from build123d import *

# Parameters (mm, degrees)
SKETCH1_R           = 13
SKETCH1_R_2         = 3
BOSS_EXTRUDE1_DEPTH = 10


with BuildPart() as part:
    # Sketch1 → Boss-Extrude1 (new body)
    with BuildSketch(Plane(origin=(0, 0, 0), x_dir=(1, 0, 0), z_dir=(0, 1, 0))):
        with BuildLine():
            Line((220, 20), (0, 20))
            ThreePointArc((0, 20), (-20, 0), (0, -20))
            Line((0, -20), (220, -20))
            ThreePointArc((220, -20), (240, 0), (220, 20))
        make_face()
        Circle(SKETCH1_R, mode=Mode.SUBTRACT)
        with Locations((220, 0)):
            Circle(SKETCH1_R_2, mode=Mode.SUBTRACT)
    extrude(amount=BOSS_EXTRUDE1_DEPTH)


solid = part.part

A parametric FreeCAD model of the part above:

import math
import FreeCAD as App
import Part
import Sketcher
Q = App.Units.Quantity

doc = App.newDocument("Part")
body = doc.addObject("PartDesign::Body", "Body")

# Sketch on XZ plane
sketch1 = body.newObject("Sketcher::SketchObject", "Sketch")
sketch1.AttachmentSupport = (doc.getObject("XZ_Plane"), [""])
sketch1.MapMode = "FlatFace"
sketch1.addGeometry(Part.LineSegment(App.Vector(220, -20, 0), App.Vector(0, -20, 0)), False)
sketch1.addGeometry(Part.ArcOfCircle(Part.Circle(App.Vector(0, 0, 0), App.Vector(0, 0, 1), 20), math.radians(90), math.radians(270)), False)
sketch1.addGeometry(Part.LineSegment(App.Vector(0, 20, 0), App.Vector(220, 20, 0)), False)
sketch1.addGeometry(Part.ArcOfCircle(Part.Circle(App.Vector(220, 0, 0), App.Vector(0, 0, 1), 20), math.radians(-90), math.radians(90)), False)
sketch1.addGeometry(Part.Circle(App.Vector(0, 0, 0), App.Vector(0, 0, 1), 13), False)
sketch1.addGeometry(Part.Circle(App.Vector(220, 0, 0), App.Vector(0, 0, 1), 3), False)
sketch1.addConstraint(Sketcher.Constraint("Tangent", 0, 2, 1, 2))
sketch1.addConstraint(Sketcher.Constraint("Tangent", 1, 1, 2, 1))
sketch1.addConstraint(Sketcher.Constraint("Tangent", 2, 2, 3, 2))
sketch1.addConstraint(Sketcher.Constraint("Tangent", 3, 1, 0, 1))
sketch1.addConstraint(Sketcher.Constraint("Horizontal", 0))
sketch1.addConstraint(Sketcher.Constraint("Horizontal", 2))
sketch1.addConstraint(Sketcher.Constraint("Coincident", 1, 3, -1, 1))
sketch1.addConstraint(Sketcher.Constraint("Coincident", 4, 3, -1, 1))
sketch1.addConstraint(Sketcher.Constraint("Coincident", 5, 3, 3, 3))
sketch1.addConstraint(Sketcher.Constraint("Diameter", 4, Q("26 mm")))
sketch1.addConstraint(Sketcher.Constraint("Diameter", 5, Q("6 mm")))
sketch1.addConstraint(Sketcher.Constraint("Radius", 1, Q("20 mm")))
sketch1.addConstraint(Sketcher.Constraint("DistanceX", 0, 2, 0, 1, Q("220 mm")))
pad1 = body.newObject("PartDesign::Pad", "Pad")
pad1.Profile = sketch1
pad1.Length = 10
pad1.Reversed = True

doc.recompute()
